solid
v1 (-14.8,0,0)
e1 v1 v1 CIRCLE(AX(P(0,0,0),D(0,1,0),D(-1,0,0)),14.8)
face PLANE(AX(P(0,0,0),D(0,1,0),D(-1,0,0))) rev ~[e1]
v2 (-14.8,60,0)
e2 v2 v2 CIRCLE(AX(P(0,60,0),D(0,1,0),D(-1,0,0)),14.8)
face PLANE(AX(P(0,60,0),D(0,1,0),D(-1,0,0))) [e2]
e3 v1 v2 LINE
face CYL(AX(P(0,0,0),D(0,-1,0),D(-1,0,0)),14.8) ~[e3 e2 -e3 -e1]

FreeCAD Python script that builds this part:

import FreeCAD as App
import Part
import Sketcher

V = App.Vector
Q = App.Units.Quantity

doc = App.newDocument("Part")
body = doc.addObject("PartDesign::Body", "Body")

# Sketch on XZ plane
sketch1 = body.newObject("Sketcher::SketchObject", "Sketch")
sketch1.AttachmentSupport = (doc.getObject("XZ_Plane"), [""])
sketch1.MapMode = "FlatFace"
sketch1.addGeometry(Part.Circle(V(0, 0, 0), V(0, 0, 1), 15), False)
sketch1.addConstraint(Sketcher.Constraint("Coincident", 0, 3, -1, 1))
sketch1.addConstraint(Sketcher.Constraint("Diameter", 0, Q("29.6 mm")))
pad1 = body.newObject("PartDesign::Pad", "Pad")
pad1.Profile = sketch1
pad1.Length = 60
pad1.Reversed = True

doc.recompute()
